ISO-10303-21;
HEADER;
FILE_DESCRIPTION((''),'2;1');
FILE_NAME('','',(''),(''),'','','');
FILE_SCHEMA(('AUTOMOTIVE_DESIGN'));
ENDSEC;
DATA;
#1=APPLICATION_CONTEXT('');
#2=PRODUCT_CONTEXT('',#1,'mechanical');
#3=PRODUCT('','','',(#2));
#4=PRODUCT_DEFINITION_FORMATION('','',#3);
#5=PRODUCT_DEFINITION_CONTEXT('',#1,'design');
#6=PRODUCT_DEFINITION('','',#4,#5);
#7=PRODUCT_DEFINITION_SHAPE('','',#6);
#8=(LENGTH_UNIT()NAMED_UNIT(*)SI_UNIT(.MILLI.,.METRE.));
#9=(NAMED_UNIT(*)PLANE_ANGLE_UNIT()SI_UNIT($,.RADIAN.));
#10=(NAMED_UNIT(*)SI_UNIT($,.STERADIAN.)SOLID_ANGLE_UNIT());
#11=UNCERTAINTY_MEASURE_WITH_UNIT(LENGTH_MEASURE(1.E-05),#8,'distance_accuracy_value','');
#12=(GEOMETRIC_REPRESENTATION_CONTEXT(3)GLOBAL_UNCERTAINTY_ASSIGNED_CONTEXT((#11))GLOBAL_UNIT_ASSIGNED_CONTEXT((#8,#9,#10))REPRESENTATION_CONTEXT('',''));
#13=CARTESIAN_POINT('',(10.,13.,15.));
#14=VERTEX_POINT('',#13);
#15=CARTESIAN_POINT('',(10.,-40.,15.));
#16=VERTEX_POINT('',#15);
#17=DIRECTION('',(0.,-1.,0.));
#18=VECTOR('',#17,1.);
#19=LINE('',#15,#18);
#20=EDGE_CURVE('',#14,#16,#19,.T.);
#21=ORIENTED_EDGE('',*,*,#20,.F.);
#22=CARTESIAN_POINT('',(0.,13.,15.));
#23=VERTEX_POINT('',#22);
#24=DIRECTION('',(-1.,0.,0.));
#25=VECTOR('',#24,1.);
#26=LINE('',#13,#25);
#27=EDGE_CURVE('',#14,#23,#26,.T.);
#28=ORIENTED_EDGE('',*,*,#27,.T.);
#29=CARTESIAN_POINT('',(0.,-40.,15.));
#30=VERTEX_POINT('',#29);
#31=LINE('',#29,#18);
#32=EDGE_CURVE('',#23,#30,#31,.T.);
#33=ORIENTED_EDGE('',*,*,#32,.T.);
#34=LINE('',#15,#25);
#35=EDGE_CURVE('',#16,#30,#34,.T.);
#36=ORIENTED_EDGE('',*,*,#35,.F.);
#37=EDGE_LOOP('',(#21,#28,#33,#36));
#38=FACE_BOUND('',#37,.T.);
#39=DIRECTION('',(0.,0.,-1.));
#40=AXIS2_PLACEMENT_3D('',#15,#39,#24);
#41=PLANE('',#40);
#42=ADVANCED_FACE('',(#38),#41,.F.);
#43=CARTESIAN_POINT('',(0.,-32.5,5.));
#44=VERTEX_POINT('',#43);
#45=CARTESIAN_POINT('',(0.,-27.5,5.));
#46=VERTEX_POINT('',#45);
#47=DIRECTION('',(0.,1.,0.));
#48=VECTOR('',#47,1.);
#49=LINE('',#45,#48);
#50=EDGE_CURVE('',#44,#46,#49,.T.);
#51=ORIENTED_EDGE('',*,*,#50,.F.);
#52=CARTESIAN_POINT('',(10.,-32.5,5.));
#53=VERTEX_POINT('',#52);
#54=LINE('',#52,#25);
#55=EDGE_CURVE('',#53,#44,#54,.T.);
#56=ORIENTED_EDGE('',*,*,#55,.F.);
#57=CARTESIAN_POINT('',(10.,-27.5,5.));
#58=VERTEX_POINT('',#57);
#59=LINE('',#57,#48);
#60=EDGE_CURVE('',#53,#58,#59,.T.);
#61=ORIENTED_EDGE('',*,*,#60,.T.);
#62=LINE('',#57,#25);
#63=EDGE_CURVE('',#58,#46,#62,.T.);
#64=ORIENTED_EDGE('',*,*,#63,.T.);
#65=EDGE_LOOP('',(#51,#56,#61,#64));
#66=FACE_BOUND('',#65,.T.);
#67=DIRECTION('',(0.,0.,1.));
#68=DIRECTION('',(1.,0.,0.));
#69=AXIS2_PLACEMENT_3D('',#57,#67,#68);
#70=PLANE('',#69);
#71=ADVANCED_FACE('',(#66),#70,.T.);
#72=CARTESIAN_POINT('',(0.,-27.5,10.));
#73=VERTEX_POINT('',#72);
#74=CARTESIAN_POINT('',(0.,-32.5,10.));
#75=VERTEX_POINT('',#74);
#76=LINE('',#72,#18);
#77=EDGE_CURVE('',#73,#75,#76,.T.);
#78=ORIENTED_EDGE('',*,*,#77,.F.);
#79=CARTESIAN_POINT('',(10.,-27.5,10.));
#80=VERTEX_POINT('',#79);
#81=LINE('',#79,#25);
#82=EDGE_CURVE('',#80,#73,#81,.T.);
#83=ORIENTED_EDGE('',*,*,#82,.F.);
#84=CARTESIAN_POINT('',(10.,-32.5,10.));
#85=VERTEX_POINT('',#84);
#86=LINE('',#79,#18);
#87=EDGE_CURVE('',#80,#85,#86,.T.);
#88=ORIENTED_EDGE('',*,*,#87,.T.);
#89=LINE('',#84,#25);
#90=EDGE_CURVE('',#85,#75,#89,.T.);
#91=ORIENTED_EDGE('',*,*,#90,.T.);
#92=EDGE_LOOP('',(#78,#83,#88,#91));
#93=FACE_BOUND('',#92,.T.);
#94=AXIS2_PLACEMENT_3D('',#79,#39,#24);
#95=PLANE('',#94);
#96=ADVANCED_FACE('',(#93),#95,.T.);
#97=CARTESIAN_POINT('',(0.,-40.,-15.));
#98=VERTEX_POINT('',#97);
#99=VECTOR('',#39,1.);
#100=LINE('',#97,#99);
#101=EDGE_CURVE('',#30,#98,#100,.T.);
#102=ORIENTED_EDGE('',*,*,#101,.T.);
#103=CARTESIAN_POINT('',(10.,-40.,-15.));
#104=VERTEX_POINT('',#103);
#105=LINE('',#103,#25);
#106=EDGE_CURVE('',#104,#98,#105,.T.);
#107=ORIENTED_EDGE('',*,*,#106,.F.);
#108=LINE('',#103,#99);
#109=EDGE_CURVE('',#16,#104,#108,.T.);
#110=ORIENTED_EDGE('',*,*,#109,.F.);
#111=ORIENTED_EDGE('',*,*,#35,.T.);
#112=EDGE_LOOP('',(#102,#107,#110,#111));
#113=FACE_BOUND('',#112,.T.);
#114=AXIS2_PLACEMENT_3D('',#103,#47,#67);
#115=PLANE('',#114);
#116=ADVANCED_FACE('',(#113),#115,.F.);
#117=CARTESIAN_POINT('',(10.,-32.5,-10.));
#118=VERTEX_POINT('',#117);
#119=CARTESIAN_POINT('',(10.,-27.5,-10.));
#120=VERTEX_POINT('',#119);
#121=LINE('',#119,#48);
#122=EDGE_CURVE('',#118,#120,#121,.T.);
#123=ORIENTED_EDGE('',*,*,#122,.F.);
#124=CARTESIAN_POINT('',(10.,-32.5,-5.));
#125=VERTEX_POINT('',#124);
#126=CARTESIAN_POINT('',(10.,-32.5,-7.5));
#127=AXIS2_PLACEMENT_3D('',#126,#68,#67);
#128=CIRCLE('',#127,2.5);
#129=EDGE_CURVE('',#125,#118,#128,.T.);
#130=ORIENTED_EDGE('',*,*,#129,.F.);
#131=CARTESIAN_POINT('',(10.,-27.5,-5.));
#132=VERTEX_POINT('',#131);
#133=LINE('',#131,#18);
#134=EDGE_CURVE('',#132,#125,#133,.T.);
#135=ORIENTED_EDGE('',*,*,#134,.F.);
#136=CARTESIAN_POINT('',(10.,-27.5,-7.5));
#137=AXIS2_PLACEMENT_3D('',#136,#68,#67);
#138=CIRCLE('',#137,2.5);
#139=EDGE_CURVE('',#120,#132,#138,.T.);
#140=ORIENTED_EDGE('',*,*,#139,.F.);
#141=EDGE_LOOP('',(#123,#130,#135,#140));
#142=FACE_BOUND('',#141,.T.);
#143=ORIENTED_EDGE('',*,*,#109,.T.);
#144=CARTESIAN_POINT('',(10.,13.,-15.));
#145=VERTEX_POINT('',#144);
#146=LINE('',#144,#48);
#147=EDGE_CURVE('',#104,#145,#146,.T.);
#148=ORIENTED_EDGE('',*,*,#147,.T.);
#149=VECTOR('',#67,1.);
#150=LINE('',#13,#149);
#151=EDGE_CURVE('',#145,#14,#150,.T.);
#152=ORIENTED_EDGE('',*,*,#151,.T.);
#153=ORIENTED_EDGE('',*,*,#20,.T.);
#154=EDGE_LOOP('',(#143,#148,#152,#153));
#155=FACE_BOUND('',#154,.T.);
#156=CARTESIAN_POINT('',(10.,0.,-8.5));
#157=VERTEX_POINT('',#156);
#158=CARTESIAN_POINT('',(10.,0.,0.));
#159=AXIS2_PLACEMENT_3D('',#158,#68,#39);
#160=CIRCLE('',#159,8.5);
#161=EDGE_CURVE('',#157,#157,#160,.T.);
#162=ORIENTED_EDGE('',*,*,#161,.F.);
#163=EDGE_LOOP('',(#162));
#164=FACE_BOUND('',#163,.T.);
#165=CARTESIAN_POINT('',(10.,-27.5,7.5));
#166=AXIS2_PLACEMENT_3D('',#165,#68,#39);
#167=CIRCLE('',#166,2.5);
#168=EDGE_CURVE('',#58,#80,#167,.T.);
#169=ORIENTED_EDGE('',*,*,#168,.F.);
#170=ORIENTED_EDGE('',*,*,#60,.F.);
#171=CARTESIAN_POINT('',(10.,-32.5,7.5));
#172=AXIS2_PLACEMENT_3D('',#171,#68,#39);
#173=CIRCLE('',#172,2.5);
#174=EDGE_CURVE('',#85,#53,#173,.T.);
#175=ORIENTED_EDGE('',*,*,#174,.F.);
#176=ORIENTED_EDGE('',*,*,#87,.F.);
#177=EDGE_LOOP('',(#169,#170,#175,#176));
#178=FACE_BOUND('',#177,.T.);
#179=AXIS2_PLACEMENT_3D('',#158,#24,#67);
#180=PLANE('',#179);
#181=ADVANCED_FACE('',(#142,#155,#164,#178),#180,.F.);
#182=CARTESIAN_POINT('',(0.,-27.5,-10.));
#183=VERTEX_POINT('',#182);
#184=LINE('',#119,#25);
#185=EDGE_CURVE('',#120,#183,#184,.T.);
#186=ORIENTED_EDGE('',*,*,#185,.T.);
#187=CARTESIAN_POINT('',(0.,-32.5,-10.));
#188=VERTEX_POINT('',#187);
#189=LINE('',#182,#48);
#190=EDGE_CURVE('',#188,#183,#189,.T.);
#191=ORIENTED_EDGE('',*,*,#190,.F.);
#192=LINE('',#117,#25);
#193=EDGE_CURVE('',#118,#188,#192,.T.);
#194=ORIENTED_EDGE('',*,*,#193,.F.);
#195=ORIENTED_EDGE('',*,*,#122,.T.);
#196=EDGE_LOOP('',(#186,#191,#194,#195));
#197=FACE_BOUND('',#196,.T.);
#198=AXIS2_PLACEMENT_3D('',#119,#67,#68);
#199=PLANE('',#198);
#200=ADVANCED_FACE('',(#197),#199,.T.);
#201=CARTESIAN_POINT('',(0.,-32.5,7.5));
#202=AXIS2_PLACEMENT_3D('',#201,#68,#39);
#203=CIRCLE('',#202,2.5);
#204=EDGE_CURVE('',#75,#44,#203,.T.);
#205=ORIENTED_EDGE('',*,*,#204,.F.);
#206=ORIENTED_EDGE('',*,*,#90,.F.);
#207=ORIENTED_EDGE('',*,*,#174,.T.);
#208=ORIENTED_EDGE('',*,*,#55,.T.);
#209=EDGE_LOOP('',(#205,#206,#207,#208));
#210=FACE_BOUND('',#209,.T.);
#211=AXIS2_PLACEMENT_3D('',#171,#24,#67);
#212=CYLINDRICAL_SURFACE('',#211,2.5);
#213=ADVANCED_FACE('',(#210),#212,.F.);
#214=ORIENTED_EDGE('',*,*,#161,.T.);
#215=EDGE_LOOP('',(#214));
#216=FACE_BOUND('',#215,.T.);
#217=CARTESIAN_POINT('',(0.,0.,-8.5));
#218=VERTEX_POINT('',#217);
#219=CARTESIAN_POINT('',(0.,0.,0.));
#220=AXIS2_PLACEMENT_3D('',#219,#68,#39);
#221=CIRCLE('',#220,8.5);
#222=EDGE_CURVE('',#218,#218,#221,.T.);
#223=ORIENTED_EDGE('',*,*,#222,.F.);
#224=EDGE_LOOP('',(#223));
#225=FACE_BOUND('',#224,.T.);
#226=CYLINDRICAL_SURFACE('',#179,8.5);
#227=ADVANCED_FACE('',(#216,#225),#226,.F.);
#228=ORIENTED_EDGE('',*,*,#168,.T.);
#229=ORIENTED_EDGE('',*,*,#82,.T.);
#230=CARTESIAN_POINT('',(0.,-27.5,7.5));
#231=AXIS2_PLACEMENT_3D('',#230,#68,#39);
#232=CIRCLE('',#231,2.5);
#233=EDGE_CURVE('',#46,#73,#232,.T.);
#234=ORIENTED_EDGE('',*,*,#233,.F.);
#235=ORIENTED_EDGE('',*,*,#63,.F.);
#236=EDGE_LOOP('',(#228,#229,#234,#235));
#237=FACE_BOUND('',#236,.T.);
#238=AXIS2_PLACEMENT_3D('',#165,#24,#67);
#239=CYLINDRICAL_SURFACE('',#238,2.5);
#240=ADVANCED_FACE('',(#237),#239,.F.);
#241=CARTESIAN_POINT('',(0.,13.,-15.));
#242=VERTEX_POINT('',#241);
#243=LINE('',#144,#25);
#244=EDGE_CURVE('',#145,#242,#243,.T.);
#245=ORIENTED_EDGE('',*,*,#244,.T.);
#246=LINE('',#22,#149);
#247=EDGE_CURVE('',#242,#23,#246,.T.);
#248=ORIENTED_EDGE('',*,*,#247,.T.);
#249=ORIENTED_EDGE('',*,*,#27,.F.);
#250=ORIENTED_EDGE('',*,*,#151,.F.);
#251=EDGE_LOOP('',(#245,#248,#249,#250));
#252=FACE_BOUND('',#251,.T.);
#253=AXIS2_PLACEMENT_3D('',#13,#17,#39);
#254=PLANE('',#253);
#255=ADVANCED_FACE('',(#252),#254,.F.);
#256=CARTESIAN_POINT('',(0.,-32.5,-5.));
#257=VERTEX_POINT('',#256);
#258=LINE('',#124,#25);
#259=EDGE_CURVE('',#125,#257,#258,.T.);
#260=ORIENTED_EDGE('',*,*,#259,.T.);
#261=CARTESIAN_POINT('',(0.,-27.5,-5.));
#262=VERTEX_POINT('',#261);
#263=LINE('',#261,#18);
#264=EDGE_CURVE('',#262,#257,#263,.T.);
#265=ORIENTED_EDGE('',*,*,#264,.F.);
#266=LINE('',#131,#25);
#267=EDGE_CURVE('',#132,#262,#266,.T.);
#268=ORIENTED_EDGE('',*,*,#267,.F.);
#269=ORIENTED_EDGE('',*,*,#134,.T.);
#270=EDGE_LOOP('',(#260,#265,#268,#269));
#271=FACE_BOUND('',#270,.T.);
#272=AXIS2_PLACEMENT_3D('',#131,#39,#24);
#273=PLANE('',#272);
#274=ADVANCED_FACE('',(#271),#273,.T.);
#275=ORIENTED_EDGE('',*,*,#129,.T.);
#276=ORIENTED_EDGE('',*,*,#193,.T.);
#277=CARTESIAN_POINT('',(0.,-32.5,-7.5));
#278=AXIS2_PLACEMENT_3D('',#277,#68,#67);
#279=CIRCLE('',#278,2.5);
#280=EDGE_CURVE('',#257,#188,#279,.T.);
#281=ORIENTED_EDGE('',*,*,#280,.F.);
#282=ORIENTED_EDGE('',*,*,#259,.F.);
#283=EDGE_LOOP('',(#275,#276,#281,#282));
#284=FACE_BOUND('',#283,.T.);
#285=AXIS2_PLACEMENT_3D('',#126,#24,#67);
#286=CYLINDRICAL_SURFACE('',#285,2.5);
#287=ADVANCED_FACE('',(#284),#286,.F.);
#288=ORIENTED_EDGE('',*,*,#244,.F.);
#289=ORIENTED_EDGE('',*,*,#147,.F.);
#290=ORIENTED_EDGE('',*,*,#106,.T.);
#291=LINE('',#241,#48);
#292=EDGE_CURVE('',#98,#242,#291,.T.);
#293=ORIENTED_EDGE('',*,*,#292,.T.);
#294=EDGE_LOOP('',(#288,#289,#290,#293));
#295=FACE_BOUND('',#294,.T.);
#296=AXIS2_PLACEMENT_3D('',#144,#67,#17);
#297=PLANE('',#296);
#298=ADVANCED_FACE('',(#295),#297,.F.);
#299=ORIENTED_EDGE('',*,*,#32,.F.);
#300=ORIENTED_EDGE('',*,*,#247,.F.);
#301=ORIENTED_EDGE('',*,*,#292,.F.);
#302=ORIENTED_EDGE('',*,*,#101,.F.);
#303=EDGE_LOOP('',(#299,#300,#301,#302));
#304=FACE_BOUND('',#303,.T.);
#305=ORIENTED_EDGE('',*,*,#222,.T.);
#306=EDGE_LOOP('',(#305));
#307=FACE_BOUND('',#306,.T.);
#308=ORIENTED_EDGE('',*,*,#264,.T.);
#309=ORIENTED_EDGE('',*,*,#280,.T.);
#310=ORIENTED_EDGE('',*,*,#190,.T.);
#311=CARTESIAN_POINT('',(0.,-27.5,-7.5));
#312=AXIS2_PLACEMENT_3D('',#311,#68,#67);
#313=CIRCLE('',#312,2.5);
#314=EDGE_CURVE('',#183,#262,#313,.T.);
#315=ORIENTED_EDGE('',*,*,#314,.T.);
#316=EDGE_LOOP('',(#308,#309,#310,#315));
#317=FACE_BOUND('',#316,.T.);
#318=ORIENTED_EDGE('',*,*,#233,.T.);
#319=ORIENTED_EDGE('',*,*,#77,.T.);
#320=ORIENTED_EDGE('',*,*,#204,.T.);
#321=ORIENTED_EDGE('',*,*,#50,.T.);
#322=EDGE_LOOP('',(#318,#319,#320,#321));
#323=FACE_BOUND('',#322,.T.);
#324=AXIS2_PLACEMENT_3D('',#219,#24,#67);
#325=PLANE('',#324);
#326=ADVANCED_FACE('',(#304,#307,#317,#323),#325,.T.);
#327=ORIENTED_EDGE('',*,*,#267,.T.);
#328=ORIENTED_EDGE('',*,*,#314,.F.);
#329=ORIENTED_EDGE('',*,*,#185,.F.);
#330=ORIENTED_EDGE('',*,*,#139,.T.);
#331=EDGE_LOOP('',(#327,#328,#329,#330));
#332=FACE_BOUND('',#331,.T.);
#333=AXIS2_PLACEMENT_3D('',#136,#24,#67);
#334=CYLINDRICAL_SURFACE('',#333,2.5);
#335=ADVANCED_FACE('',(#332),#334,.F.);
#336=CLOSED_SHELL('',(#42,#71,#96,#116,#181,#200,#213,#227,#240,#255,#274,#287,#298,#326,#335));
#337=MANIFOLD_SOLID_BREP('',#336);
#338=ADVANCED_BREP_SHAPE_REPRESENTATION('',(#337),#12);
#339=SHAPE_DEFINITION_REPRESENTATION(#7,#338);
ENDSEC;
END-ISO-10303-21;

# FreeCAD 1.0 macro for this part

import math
import FreeCAD as App
import Part
import Sketcher

V = App.Vector

doc = App.newDocument("Part")
params = doc.addObject("Spreadsheet::Sheet", "Params")
for row, (alias, value) in enumerate([
    ("sketch1_diameter", "17 mm"),
    ("sketch1_radius", "2.5 mm"),
    ("sketch1_width", "53 mm"),
    ("sketch1_width2", "5 mm"),
    ("sketch1_height", "30 mm"),
    ("pad1_length", "10 mm"),
], start=1):
    params.set(f"A{row}", alias)
    params.set(f"B{row}", "=" + value)
    params.setAlias(f"B{row}", alias)

body = doc.addObject("PartDesign::Body", "Body")

# Sketch on YZ plane
sketch1 = body.newObject("Sketcher::SketchObject", "Sketch")
sketch1.AttachmentSupport = (doc.getObject("YZ_Plane"), [""])
sketch1.MapMode = "FlatFace"
sketch1.addGeometry([
    Part.LineSegment(V(13, 15, 0), V(-40, 15, 0)),  # 0
    Part.LineSegment(V(-40, 15, 0), V(-40, -15, 0)),  # 1
    Part.LineSegment(V(-40, -15, 0), V(13, -15, 0)),  # 2
    Part.LineSegment(V(13, -15, 0), V(13, 15, 0)),  # 3
    Part.ArcOfCircle(Part.Circle(V(-27.5, 7.5, 0), V(0, 0, 1), 2.5), math.radians(-90), math.radians(90)),  # 4
    Part.LineSegment(V(-27.5, 5, 0), V(-32.5, 5, 0)),  # 5
    Part.ArcOfCircle(Part.Circle(V(-32.5, 7.5, 0), V(0, 0, 1), 2.5), math.radians(90), math.radians(270)),  # 6
    Part.LineSegment(V(-32.5, 10, 0), V(-27.5, 10, 0)),  # 7
    Part.LineSegment(V(-32.5, -5, 0), V(-27.5, -5, 0)),  # 8
    Part.ArcOfCircle(Part.Circle(V(-27.5, -7.5, 0), V(0, 0, 1), 2.5), math.radians(-90), math.radians(90)),  # 9
    Part.LineSegment(V(-27.5, -10, 0), V(-32.5, -10, 0)),  # 10
    Part.ArcOfCircle(Part.Circle(V(-32.5, -7.5, 0), V(0, 0, 1), 2.5), math.radians(90), math.radians(270)),  # 11
    Part.Circle(V(0, 0, 0), V(0, 0, 1), 8.5),  # 12
], False)
sketch1.addConstraint([
    Sketcher.Constraint("Coincident", 0, 2, 1, 1),
    Sketcher.Constraint("Coincident", 1, 2, 2, 1),
    Sketcher.Constraint("Coincident", 2, 2, 3, 1),
    Sketcher.Constraint("Coincident", 3, 2, 0, 1),
    Sketcher.Constraint("Tangent", 4, 1, 5, 1),
    Sketcher.Constraint("Tangent", 5, 2, 6, 2),
    Sketcher.Constraint("Tangent", 6, 1, 7, 1),
    Sketcher.Constraint("Tangent", 7, 2, 4, 2),
    Sketcher.Constraint("Tangent", 8, 2, 9, 2),
    Sketcher.Constraint("Tangent", 9, 1, 10, 1),
    Sketcher.Constraint("Tangent", 10, 2, 11, 2),
    Sketcher.Constraint("Tangent", 11, 1, 8, 1),
    Sketcher.Constraint("Horizontal", 0),
    Sketcher.Constraint("Vertical", 1),
    Sketcher.Constraint("Horizontal", 2),
    Sketcher.Constraint("Vertical", 3),
    Sketcher.Constraint("Horizontal", 5),
    Sketcher.Constraint("Horizontal", 7),
    Sketcher.Constraint("Horizontal", 8),
    Sketcher.Constraint("Horizontal", 10),
    Sketcher.Constraint("Coincident", 12, 3, -1, 1),
    Sketcher.Constraint("Equal", 6, 9),
    Sketcher.Constraint("Symmetric", 4, 3, 9, 3, -1),
    Sketcher.Constraint("Vertical", 6, 3, 11, 3),
    Sketcher.Constraint("Diameter", 12, 17.0),
    Sketcher.Constraint("Radius", 4, 2.5),
    Sketcher.Constraint("DistanceX", 0, 2, 0, 1, 53.0),
    Sketcher.Constraint("DistanceX", 5, 2, 5, 1, 5.0),
    Sketcher.Constraint("DistanceY", 1, 2, 1, 1, 30.0),
    Sketcher.Constraint("DistanceX", 0, 2, -1, 1, 40.0),
    Sketcher.Constraint("DistanceY", -1, 1, 0, 2, 15.0),
    Sketcher.Constraint("DistanceY", -1, 1, 4, 1, 5.0),
    Sketcher.Constraint("DistanceX", 4, 3, -1, 1, 27.5),
])
sketch1.setExpression("Constraints[24]", "Params.sketch1_diameter")
sketch1.setExpression("Constraints[25]", "Params.sketch1_radius")
sketch1.setExpression("Constraints[26]", "Params.sketch1_width")
sketch1.setExpression("Constraints[27]", "Params.sketch1_width2")
sketch1.setExpression("Constraints[28]", "Params.sketch1_height")
pad1 = body.newObject("PartDesign::Pad", "Pad")
pad1.Profile = sketch1
pad1.setExpression("Length", "Params.pad1_length")

doc.recompute()
